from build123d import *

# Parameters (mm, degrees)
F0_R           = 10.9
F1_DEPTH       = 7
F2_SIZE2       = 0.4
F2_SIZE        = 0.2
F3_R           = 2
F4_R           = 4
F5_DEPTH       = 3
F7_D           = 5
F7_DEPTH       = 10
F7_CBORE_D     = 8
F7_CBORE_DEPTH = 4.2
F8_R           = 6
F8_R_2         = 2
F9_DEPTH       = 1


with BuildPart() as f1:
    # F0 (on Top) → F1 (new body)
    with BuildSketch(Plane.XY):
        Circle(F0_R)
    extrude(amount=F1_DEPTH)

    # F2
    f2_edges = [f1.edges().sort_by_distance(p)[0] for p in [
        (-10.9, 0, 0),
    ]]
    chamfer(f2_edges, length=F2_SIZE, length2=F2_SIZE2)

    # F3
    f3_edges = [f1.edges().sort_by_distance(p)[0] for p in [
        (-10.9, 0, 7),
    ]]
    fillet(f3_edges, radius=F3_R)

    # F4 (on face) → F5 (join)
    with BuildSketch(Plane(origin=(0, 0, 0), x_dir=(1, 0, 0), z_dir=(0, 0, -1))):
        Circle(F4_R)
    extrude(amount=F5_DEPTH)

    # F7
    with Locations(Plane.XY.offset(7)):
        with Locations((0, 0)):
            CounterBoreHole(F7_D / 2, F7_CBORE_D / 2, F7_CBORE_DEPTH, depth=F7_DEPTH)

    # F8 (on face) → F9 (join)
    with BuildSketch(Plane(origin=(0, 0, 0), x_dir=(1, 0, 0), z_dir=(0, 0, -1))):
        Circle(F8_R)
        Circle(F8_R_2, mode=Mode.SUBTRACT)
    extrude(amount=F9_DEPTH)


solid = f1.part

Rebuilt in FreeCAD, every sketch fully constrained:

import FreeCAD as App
import Part
import Sketcher
from FreeCAD import Vector
Q = App.Units.Quantity


def edges_at(feature, points):
    """Names of the edges that pass closest to the given points."""
    edges = feature.Shape.Edges
    near = lambda p: min(range(len(edges)), key=lambda i: edges[i].distToShape(Part.Vertex(*p))[0])
    return sorted({f"Edge{near(p) + 1}" for p in points})

doc = App.newDocument("Part")
params = doc.addObject("Spreadsheet::Sheet", "Params")
for row, (alias, value) in enumerate([
    ("sketch1_diameter", "21.8 mm"),
    ("pad1_length", "7 mm"),
    ("chamfer_size", "0.2 mm"),
    ("chamfer_size2", "0.4 mm"),
    ("fillet_radius", "2 mm"),
    ("sketch2_diameter", "8 mm"),
    ("pad2_length", "3 mm"),
    ("sketch3_diameter", "5 mm"),
    ("hole_diameter", "5 mm"),
    ("hole_depth", "10 mm"),
    ("hole_cbore_diameter", "8 mm"),
    ("hole_cbore_depth", "4.2 mm"),
    ("sketch4_diameter", "12 mm"),
    ("sketch4_diameter2", "4 mm"),
    ("pad3_length", "1 mm"),
], start=1):
    params.set(f"A{row}", alias)
    params.set(f"B{row}", "=" + value)
    params.setAlias(f"B{row}", alias)

body = doc.addObject("PartDesign::Body", "Body")

# Sketch on XY plane
sketch1 = doc.addObject("Sketcher::SketchObject", "Sketch")
body.addObject(sketch1)
sketch1.AttachmentSupport = (doc.XY_Plane, [""])
sketch1.MapMode = "FlatFace"
sketch1.addGeometry(Part.Circle(Vector(0, 0, 0), Vector(0, 0, 1), 11), False)
sketch1.addConstraint(Sketcher.Constraint("Coincident", 0, 3, -1, 1))
sketch1.addConstraint(Sketcher.Constraint("Diameter", 0, Q("21.8 mm")))
sketch1.setExpression("Constraints[1]", "Params.sketch1_diameter")
pad1 = doc.addObject("PartDesign::Pad", "Pad")
body.addObject(pad1)
pad1.Profile = sketch1
pad1.setExpression("Length", "Params.pad1_length")
doc.recompute()

chamfer = doc.addObject("PartDesign::Chamfer", "Chamfer")
body.addObject(chamfer)
chamfer.Base = (pad1, edges_at(pad1, [(-10.9, 0, 0)]))
chamfer.ChamferType = "Two distances"
chamfer.setExpression("Size", "Params.chamfer_size")
chamfer.setExpression("Size2", "Params.chamfer_size2")
doc.recompute()

fillet = doc.addObject("PartDesign::Fillet", "Fillet")
body.addObject(fillet)
fillet.Base = (chamfer, edges_at(chamfer, [(-10.9, 0, 7)]))
fillet.setExpression("Radius", "Params.fillet_radius")

# Sketch on XY plane
sketch2 = doc.addObject("Sketcher::SketchObject", "Sketch001")
body.addObject(sketch2)
sketch2.AttachmentSupport = (doc.XY_Plane, [""])
sketch2.MapMode = "FlatFace"
sketch2.addGeometry(Part.Circle(Vector(0, 0, 0), Vector(0, 0, 1), 4), False)
sketch2.addConstraint(Sketcher.Constraint("Coincident", 0, 3, -1, 1))
sketch2.addConstraint(Sketcher.Constraint("Diameter", 0, Q("8 mm")))
sketch2.setExpression("Constraints[1]", "Params.sketch2_diameter")
pad2 = doc.addObject("PartDesign::Pad", "Pad001")
body.addObject(pad2)
pad2.Profile = sketch2
pad2.setExpression("Length", "Params.pad2_length")
pad2.Reversed = True

# Sketch on XY plane
sketch3 = doc.addObject("Sketcher::SketchObject", "Sketch002")
body.addObject(sketch3)
sketch3.AttachmentSupport = (doc.XY_Plane, [""])
sketch3.MapMode = "FlatFace"
sketch3.AttachmentOffset = App.Placement(Vector(0, 0, 7), App.Rotation())
sketch3.addGeometry(Part.Circle(Vector(0, 0, 0), Vector(0, 0, 1), 2.5), False)
sketch3.addConstraint(Sketcher.Constraint("Coincident", 0, 3, -1, 1))
sketch3.addConstraint(Sketcher.Constraint("Diameter", 0, Q("5 mm")))
sketch3.setExpression("Constraints[1]", "Params.sketch3_diameter")
doc.recompute()
hole = doc.addObject("PartDesign::Hole", "Hole")
body.addObject(hole)
hole.Profile = sketch3
hole.ThreadType = "None"
hole.setExpression("Diameter", "Params.hole_diameter")
hole.DepthType = "Dimension"
hole.setExpression("Depth", "Params.hole_depth")
hole.DrillPoint = "Flat"
hole.HoleCutType = "Counterbore"
hole.setExpression("HoleCutDiameter", "Params.hole_cbore_diameter")
hole.setExpression("HoleCutDepth", "Params.hole_cbore_depth")

# Sketch on XY plane
sketch4 = doc.addObject("Sketcher::SketchObject", "Sketch003")
body.addObject(sketch4)
sketch4.AttachmentSupport = (doc.XY_Plane, [""])
sketch4.MapMode = "FlatFace"
sketch4.addGeometry(Part.Circle(Vector(0, 0, 0), Vector(0, 0, 1), 6), False)
sketch4.addGeometry(Part.Circle(Vector(0, 0, 0), Vector(0, 0, 1), 2), False)
sketch4.addConstraint(Sketcher.Constraint("Coincident", 0, 3, -1, 1))
sketch4.addConstraint(Sketcher.Constraint("Coincident", 1, 3, -1, 1))
sketch4.addConstraint(Sketcher.Constraint("Diameter", 0, Q("12 mm")))
sketch4.addConstraint(Sketcher.Constraint("Diameter", 1, Q("4 mm")))
sketch4.setExpression("Constraints[2]", "Params.sketch4_diameter")
sketch4.setExpression("Constraints[3]", "Params.sketch4_diameter2")
pad3 = doc.addObject("PartDesign::Pad", "Pad002")
body.addObject(pad3)
pad3.Profile = sketch4
pad3.setExpression("Length", "Params.pad3_length")
pad3.Reversed = True

doc.recompute()
